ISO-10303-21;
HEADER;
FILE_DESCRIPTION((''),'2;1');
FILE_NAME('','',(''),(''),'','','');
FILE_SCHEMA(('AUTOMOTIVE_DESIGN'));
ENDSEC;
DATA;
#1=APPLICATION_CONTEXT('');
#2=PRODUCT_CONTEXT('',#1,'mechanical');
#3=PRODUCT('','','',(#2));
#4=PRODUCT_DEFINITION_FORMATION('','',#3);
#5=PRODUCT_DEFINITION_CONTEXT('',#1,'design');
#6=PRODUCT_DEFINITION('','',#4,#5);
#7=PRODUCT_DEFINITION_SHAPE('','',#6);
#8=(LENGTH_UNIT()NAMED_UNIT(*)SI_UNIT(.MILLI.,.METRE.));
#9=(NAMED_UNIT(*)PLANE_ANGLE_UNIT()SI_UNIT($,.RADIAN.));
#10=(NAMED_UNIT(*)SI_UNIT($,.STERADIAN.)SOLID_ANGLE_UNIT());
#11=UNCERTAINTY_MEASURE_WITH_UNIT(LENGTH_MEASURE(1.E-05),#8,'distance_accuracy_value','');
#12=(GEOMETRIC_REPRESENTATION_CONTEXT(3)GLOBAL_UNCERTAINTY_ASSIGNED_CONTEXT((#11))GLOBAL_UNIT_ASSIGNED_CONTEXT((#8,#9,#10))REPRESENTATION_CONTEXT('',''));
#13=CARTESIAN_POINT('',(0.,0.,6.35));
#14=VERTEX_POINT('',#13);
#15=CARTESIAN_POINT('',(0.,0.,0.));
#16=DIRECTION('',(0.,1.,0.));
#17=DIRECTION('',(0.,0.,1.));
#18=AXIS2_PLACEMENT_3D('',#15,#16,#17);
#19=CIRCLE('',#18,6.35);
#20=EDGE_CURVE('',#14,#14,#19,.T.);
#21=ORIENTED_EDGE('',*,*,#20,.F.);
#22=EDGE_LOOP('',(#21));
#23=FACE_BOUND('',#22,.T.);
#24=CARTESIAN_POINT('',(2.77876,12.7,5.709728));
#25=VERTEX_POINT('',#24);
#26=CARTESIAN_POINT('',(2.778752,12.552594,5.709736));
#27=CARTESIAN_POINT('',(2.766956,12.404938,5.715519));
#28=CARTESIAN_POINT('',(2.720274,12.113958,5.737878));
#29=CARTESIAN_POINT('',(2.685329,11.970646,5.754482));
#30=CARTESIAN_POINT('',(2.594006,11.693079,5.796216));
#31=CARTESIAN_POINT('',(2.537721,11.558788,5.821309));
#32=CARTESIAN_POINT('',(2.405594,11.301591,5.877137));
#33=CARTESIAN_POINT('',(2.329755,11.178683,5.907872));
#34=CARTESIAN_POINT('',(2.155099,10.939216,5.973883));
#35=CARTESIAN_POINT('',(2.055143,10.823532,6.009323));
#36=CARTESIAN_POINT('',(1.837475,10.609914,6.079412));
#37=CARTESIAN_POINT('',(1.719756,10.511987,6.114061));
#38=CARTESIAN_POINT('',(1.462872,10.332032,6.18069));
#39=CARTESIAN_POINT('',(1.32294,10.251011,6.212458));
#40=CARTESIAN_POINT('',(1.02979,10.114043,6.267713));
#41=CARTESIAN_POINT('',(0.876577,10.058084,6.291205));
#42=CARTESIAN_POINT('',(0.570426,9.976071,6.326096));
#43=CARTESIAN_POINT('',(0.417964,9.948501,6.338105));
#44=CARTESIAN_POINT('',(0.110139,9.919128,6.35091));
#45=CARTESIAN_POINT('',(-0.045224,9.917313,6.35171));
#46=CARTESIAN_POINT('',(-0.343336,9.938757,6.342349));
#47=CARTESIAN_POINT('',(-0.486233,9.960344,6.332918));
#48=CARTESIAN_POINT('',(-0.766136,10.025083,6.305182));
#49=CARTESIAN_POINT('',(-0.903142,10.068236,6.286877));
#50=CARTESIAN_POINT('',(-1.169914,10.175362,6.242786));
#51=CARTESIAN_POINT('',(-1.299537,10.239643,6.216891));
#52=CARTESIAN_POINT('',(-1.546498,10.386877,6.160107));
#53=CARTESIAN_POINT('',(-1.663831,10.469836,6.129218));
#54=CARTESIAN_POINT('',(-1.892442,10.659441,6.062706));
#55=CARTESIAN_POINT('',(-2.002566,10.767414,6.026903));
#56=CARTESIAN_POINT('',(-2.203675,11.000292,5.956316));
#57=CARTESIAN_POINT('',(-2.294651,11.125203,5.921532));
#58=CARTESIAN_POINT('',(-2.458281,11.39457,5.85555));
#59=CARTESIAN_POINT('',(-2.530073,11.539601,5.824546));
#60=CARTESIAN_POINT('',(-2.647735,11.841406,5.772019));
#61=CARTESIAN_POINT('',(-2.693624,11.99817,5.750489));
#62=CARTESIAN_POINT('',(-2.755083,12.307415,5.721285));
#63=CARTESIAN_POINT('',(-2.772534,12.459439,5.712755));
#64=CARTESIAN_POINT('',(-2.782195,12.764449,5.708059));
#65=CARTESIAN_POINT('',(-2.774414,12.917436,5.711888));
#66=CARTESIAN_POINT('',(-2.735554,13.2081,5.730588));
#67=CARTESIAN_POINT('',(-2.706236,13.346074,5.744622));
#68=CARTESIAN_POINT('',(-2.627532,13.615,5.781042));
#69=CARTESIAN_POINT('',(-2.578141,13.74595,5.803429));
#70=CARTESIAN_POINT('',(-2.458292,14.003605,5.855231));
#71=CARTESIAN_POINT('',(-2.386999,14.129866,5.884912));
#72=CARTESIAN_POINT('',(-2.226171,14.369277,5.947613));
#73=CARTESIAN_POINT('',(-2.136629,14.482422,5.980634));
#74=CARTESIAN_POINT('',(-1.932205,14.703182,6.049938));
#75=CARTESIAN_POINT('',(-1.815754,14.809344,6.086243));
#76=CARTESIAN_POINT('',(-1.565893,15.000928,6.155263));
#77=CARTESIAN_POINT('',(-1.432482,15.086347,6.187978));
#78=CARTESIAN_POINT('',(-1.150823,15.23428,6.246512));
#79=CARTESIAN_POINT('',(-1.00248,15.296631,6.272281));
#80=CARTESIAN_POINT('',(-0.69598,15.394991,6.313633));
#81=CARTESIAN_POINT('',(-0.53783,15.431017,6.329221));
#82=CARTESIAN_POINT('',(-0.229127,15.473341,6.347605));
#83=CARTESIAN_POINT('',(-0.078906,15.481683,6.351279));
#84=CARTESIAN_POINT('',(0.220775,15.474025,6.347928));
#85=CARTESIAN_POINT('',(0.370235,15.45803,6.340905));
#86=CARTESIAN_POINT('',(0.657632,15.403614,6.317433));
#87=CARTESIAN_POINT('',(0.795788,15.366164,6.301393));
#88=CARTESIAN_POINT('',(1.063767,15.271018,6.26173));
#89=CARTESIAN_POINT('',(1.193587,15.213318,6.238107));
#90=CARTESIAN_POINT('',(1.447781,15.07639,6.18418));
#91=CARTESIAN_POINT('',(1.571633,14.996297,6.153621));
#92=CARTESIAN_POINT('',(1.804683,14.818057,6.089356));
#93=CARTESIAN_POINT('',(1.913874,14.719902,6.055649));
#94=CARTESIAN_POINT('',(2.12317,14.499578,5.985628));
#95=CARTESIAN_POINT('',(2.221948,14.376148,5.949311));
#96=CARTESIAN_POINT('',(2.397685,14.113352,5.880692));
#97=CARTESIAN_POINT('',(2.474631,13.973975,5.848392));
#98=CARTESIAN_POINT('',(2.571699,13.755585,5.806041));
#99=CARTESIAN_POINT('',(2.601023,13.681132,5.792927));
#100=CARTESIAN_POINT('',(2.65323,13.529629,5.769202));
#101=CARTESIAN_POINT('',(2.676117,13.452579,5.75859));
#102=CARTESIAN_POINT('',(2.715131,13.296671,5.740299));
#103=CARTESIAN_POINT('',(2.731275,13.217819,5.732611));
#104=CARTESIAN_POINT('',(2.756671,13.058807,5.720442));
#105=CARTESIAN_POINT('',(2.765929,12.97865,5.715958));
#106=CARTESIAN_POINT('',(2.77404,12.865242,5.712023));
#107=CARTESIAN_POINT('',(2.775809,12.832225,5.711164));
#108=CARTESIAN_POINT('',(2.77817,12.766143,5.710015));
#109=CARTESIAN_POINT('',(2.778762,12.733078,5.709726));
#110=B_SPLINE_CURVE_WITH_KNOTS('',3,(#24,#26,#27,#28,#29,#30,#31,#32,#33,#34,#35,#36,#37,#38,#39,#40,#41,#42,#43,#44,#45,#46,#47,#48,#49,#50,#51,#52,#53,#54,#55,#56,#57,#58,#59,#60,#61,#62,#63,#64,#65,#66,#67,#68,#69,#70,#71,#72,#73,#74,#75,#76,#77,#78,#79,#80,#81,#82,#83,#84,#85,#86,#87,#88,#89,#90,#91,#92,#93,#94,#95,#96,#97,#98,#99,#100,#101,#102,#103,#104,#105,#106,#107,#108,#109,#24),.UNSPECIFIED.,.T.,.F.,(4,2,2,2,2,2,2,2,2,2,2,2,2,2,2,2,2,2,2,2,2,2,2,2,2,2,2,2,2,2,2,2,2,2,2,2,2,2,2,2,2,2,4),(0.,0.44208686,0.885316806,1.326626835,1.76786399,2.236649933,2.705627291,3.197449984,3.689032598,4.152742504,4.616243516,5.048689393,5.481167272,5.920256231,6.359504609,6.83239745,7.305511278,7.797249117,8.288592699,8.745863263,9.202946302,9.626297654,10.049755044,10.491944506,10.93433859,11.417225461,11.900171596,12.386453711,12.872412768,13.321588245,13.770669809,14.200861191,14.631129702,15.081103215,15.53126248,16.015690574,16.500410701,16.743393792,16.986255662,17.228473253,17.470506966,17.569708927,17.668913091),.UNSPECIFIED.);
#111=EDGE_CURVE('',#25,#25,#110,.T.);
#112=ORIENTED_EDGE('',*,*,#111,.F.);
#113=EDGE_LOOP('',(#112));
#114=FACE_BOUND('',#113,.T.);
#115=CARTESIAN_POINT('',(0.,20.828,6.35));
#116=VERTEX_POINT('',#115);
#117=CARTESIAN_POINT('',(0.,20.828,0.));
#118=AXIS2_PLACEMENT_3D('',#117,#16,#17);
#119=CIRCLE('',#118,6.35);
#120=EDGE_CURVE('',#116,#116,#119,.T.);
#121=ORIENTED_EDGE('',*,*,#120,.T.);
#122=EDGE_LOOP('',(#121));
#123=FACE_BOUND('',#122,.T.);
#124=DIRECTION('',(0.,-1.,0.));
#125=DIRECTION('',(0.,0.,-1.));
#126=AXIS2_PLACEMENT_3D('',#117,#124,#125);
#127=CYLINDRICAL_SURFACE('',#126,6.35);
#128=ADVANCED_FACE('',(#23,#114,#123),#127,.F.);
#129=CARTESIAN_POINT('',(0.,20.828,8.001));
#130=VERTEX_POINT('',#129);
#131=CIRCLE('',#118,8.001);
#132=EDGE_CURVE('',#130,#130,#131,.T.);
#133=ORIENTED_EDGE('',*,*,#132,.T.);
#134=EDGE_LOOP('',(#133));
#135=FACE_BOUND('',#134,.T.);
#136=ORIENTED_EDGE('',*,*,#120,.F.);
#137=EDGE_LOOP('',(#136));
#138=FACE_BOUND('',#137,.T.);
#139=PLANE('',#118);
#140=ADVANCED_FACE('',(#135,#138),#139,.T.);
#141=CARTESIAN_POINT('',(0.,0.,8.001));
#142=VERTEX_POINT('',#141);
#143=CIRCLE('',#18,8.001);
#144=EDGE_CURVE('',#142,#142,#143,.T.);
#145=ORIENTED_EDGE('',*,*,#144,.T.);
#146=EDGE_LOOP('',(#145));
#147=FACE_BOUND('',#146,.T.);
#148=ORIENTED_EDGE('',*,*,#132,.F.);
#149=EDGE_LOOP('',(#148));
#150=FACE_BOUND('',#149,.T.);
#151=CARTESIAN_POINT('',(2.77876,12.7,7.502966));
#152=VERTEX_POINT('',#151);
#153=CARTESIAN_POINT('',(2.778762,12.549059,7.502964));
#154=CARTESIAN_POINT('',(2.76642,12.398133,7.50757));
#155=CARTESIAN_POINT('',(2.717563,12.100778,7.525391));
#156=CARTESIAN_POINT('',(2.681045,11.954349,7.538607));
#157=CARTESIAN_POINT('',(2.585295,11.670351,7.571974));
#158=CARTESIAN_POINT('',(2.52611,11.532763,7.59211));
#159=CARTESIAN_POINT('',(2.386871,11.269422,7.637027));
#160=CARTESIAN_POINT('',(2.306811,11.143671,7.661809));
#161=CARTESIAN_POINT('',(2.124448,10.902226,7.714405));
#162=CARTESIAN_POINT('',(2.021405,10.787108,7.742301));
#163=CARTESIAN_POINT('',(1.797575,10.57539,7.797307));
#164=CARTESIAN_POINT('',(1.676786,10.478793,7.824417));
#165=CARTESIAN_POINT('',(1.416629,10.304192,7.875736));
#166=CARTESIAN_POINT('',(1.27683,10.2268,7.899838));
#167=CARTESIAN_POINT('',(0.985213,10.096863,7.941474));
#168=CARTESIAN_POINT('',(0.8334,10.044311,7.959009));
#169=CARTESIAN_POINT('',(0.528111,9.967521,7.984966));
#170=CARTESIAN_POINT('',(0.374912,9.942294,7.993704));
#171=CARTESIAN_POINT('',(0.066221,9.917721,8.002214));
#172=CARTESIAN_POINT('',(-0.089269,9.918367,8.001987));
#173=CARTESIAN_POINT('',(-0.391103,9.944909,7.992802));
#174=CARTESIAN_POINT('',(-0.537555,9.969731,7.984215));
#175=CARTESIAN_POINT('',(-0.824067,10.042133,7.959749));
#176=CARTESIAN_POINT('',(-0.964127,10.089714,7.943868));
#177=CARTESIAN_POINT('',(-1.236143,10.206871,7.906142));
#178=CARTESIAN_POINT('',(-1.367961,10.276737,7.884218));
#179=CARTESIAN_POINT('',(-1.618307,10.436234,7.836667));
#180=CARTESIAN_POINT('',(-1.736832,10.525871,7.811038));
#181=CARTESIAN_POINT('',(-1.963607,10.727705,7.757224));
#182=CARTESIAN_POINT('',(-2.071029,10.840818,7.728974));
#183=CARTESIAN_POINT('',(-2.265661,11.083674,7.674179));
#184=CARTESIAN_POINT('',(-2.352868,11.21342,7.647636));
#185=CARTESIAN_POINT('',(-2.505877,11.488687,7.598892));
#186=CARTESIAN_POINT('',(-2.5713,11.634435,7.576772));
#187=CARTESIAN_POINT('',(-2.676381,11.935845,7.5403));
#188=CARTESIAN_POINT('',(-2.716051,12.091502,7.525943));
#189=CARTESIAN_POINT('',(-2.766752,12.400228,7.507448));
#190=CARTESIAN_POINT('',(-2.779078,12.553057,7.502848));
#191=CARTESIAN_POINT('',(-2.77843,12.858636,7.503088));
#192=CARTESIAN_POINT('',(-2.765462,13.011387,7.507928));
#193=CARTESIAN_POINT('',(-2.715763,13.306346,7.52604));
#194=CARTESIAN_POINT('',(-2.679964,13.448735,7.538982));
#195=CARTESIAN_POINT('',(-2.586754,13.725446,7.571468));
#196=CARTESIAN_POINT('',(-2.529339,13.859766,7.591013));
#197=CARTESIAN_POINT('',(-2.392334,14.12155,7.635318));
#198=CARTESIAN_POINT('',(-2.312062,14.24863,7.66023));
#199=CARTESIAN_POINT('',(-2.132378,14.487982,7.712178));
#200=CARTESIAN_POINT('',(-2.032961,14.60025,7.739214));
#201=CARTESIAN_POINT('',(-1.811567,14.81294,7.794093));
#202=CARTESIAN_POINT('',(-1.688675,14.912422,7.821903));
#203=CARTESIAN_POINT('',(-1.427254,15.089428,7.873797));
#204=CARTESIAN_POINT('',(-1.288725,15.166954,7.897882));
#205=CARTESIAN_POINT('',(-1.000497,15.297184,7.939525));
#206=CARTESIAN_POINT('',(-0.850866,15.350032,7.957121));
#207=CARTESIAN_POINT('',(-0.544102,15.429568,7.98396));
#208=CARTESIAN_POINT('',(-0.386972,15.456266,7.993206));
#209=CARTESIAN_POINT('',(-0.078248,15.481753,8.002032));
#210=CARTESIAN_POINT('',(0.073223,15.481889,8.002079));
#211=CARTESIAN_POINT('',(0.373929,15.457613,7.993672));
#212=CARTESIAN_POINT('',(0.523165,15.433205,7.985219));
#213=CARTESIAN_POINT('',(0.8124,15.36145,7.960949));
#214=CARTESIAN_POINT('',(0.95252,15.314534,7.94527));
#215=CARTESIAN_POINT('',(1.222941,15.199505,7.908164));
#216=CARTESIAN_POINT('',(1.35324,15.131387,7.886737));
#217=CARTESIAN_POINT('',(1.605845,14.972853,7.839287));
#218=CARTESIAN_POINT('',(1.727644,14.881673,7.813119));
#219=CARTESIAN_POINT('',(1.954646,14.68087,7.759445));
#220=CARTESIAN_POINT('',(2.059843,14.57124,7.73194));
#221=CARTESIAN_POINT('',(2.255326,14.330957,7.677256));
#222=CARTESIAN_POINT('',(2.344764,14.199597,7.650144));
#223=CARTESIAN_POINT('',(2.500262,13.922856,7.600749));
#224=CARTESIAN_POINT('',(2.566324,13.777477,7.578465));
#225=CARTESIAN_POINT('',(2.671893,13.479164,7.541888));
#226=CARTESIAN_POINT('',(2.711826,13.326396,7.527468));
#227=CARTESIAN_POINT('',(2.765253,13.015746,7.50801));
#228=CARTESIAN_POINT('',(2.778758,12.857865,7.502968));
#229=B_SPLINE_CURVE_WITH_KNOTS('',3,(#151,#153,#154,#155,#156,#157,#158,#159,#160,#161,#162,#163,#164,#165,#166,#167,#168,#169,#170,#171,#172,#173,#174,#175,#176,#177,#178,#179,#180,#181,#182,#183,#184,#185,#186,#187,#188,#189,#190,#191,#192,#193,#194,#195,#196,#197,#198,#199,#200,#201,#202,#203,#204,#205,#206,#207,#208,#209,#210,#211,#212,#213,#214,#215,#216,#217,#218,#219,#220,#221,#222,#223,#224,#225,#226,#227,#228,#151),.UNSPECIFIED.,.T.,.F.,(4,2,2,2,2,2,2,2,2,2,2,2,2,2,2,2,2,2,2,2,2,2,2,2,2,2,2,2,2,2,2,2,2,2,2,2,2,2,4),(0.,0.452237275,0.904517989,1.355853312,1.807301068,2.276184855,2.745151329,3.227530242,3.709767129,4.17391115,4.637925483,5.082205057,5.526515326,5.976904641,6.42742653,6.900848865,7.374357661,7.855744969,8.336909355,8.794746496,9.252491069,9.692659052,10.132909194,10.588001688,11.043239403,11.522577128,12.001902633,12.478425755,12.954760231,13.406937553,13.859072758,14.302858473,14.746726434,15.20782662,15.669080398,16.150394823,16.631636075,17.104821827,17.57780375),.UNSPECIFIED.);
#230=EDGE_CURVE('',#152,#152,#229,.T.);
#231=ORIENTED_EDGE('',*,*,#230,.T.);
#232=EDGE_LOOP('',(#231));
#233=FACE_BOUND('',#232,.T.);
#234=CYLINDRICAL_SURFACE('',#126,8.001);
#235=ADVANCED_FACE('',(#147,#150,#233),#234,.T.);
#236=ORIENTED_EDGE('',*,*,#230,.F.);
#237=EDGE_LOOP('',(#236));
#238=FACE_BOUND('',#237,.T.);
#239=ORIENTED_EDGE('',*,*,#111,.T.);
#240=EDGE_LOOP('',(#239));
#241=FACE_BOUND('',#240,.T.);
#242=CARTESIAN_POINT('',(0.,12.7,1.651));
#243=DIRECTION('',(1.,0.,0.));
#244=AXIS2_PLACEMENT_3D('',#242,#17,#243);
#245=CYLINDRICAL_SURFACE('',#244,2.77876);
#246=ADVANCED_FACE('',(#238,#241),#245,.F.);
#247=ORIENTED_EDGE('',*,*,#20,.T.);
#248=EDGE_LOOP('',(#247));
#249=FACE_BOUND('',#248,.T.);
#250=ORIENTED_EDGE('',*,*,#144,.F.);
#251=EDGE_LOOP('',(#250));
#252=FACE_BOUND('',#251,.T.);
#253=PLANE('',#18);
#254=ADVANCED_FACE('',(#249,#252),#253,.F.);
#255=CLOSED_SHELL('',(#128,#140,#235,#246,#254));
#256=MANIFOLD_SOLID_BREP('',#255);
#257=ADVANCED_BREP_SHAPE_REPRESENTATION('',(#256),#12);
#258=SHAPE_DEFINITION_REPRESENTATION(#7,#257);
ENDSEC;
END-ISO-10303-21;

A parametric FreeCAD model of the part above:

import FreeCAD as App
import Part
import Sketcher

V = App.Vector
Q = App.Units.Quantity

doc = App.newDocument("Part")
params = doc.addObject("Spreadsheet::Sheet", "Params")
for row, (alias, value) in enumerate([
    ("sketch1_diameter", "0.5 in"),
    ("sketch1_diameter2", "0.63 in"),
    ("pad1_length", "0.82 in"),
    ("pocket1_length", "0.25 in"),
], start=1):
    params.set(f"A{row}", alias)
    params.set(f"B{row}", "=" + value)
    params.setAlias(f"B{row}", alias)

body = doc.addObject("PartDesign::Body", "Body")

# Sketch on XZ plane
sketch1 = body.newObject("Sketcher::SketchObject", "Sketch")
sketch1.AttachmentSupport = (doc.getObject("XZ_Plane"), [""])
sketch1.MapMode = "FlatFace"
sketch1.addGeometry(Part.Circle(V(0, 0, 0), V(0, 0, 1), 8), False)
sketch1.addGeometry(Part.Circle(V(0, 0, 0), V(0, 0, 1), 6), False)
sketch1.addConstraint(Sketcher.Constraint("Coincident", 0, 3, -1, 1))
sketch1.addConstraint(Sketcher.Constraint("Coincident", 1, 3, -1, 1))
sketch1.addConstraint(Sketcher.Constraint("Diameter", 1, Q("0.5 in")))
sketch1.addConstraint(Sketcher.Constraint("Diameter", 0, Q("0.63 in")))
sketch1.setExpression("Constraints[2]", "Params.sketch1_diameter")
sketch1.setExpression("Constraints[3]", "Params.sketch1_diameter2")
pad1 = body.newObject("PartDesign::Pad", "Pad")
pad1.Profile = sketch1
pad1.setExpression("Length", "Params.pad1_length")
pad1.Reversed = True

# Sketch on XY plane
sketch2 = body.newObject("Sketcher::SketchObject", "Sketch001")
sketch2.AttachmentSupport = (doc.getObject("XY_Plane"), [""])
sketch2.MapMode = "FlatFace"
sketch2.AttachmentOffset = App.Placement(V(0, 0, 0.315 * 25.4), App.Rotation())
sketch2.addGeometry(Part.Circle(V(0, 12.7, 0), V(0, 0, 1), 2.8), False)
sketch2.addConstraint(Sketcher.Constraint("PointOnObject", 0, 3, -2))
sketch2.addConstraint(Sketcher.Constraint("Diameter", 0, Q("0.2188 in")))
sketch2.addConstraint(Sketcher.Constraint("DistanceY", -1, 1, 0, 3, Q("0.5 in")))
pocket1 = body.newObject("PartDesign::Pocket", "Pocket")
pocket1.Profile = sketch2
pocket1.setExpression("Length", "Params.pocket1_length")

doc.recompute()
